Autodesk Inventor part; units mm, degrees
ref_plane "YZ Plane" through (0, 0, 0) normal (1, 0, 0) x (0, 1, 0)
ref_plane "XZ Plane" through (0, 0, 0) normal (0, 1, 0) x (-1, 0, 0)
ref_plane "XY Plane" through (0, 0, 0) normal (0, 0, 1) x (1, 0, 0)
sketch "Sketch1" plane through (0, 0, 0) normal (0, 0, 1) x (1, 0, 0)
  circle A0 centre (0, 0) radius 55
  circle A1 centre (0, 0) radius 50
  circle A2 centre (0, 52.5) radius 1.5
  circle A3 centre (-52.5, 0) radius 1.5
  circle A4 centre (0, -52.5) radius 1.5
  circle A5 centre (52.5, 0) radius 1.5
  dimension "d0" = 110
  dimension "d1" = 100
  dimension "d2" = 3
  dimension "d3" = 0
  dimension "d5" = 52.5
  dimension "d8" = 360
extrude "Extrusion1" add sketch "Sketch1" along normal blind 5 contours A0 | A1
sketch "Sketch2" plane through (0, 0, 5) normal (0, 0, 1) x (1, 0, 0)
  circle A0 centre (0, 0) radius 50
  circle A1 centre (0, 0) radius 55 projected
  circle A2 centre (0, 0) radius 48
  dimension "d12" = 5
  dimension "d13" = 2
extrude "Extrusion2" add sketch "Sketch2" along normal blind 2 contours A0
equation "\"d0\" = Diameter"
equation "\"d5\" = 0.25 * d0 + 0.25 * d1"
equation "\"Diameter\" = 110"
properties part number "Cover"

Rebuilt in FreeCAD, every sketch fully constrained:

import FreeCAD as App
import Part
import Sketcher
from FreeCAD import Vector
Q = App.Units.Quantity

doc = App.newDocument("Part")
body = doc.addObject("PartDesign::Body", "Body")

# Sketch on XY plane
sketch1 = body.newObject("Sketcher::SketchObject", "Sketch")
sketch1.AttachmentSupport = (doc.getObject("XY_Plane"), [""])
sketch1.MapMode = "FlatFace"
sketch1.addGeometry([
    Part.Circle(Vector(0, 0, 0), Vector(0, 0, 1), 55),  # 0
    Part.Circle(Vector(0, -52.5, 0), Vector(0, 0, 1), 1.5),  # 1
    Part.Circle(Vector(-52.5, 0, 0), Vector(0, 0, 1), 1.5),  # 2
    Part.Circle(Vector(52.5, 0, 0), Vector(0, 0, 1), 1.5),  # 3
    Part.Circle(Vector(0, 52.5, 0), Vector(0, 0, 1), 1.5),  # 4
], False)
sketch1.addConstraint([
    Sketcher.Constraint("Coincident", 0, 3, -1, 1),
    Sketcher.Constraint("Equal", 1, 2),
    Sketcher.Constraint("Equal", 2, 3),
    Sketcher.Constraint("Equal", 3, 4),
    Sketcher.Constraint("Symmetric", 2, 3, 3, 3, -1, 1),
    Sketcher.Constraint("Symmetric", 1, 3, 4, 3, -1, 1),
    Sketcher.Constraint("PointOnObject", 1, 3, -2),
    Sketcher.Constraint("PointOnObject", 2, 3, -1),
    Sketcher.Constraint("Diameter", 0, Q("110 mm")),
    Sketcher.Constraint("Diameter", 1, Q("3 mm")),
    Sketcher.Constraint("DistanceY", 1, 3, -1, 1, Q("52.5 mm")),
    Sketcher.Constraint("DistanceX", 2, 3, -1, 1, Q("52.5 mm")),
])
pad1 = body.newObject("PartDesign::Pad", "Pad")
pad1.Profile = sketch1
pad1.Length = 5

# Sketch on XY plane
sketch2 = body.newObject("Sketcher::SketchObject", "Sketch001")
sketch2.AttachmentSupport = (doc.getObject("XY_Plane"), [""])
sketch2.MapMode = "FlatFace"
sketch2.AttachmentOffset = App.Placement(Vector(0, 0, 5), App.Rotation())
sketch2.addGeometry([
    Part.Circle(Vector(0, 0, 0), Vector(0, 0, 1), 50),
    Part.Circle(Vector(0, 0, 0), Vector(0, 0, 1), 48),
], False)
sketch2.addConstraint([
    Sketcher.Constraint("Coincident", 0, 3, -1, 1),
    Sketcher.Constraint("Coincident", 1, 3, -1, 1),
    Sketcher.Constraint("Diameter", 0, Q("100 mm")),
    Sketcher.Constraint("Diameter", 1, Q("96 mm")),
])
pad2 = body.newObject("PartDesign::Pad", "Pad001")
pad2.Profile = sketch2
pad2.Length = 2

doc.recompute()
